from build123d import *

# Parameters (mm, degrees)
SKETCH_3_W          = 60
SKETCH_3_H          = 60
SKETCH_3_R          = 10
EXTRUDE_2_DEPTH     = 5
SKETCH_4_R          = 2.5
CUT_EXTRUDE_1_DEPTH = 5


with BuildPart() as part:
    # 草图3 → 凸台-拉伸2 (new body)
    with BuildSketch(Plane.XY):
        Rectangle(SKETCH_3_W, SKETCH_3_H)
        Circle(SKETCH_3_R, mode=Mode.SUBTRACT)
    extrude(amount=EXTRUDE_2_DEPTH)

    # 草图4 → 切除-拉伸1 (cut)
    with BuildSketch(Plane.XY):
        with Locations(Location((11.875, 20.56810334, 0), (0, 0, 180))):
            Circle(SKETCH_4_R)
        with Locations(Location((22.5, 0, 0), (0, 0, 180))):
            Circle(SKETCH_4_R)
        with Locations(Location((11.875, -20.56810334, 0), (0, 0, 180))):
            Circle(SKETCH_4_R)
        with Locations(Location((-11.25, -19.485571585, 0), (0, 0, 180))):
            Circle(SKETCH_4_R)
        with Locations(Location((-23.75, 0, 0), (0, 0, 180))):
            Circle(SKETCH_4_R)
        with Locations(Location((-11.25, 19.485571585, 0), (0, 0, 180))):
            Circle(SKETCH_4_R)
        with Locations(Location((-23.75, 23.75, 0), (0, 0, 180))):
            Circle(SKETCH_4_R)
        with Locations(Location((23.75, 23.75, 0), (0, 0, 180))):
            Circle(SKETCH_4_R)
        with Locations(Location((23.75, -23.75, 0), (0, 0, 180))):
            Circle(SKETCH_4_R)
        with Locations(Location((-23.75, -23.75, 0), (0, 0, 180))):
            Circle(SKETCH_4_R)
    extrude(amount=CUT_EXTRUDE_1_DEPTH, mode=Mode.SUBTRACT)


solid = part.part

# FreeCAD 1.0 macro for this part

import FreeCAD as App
import Part
import Sketcher
Q = App.Units.Quantity


def add_polygon(sketch, points):
    """Adds a closed chain of lines whose ends are joined by coincident constraints."""
    first, n = sketch.GeometryCount, len(points)
    for a, b in zip(points, points[1:] + points[:1]):
        sketch.addGeometry(Part.LineSegment(App.Vector(*a, 0), App.Vector(*b, 0)), False)
    for i in range(n):
        sketch.addConstraint(Sketcher.Constraint("Coincident", first + i, 2, first + (i + 1) % n, 1))

doc = App.newDocument("Part")
params = doc.addObject("Spreadsheet::Sheet", "Params")
for row, (alias, value) in enumerate([
    ("sketch1_diameter", "20 mm"),
    ("sketch1_width", "60 mm"),
    ("pad1_length", "5 mm"),
    ("sketch2_diameter", "5 mm"),
    ("pocket1_length", "5 mm"),
], start=1):
    params.set(f"A{row}", alias)
    params.set(f"B{row}", "=" + value)
    params.setAlias(f"B{row}", alias)

body = doc.addObject("PartDesign::Body", "Body")

sketch1 = doc.addObject("Sketcher::SketchObject", "Sketch")
body.addObject(sketch1)
sketch1.AttachmentSupport = (doc.XY_Plane, [""])
sketch1.MapMode = "FlatFace"
add_polygon(sketch1, [(-30, 30), (-30, -30), (30, -30), (30, 30)])
sketch1.addGeometry(Part.Circle(App.Vector(0, 0, 0), App.Vector(0, 0, 1), 10), False)
sketch1.addConstraint(Sketcher.Constraint("Vertical", 0))
sketch1.addConstraint(Sketcher.Constraint("Horizontal", 1))
sketch1.addConstraint(Sketcher.Constraint("Vertical", 2))
sketch1.addConstraint(Sketcher.Constraint("Horizontal", 3))
sketch1.addConstraint(Sketcher.Constraint("Coincident", 4, 3, -1, 1))
sketch1.addConstraint(Sketcher.Constraint("Symmetric", 0, 2, 2, 2, -1, 1))
sketch1.addConstraint(Sketcher.Constraint("Equal", 3, 0))
sketch1.addConstraint(Sketcher.Constraint("Diameter", 4, Q("20 mm")))
sketch1.addConstraint(Sketcher.Constraint("DistanceX", 1, 1, 1, 2, Q("60 mm")))
sketch1.setExpression("Constraints[11]", "Params.sketch1_diameter")
sketch1.setExpression("Constraints[12]", "Params.sketch1_width")
pad1 = doc.addObject("PartDesign::Pad", "Pad")
body.addObject(pad1)
pad1.Profile = sketch1
pad1.setExpression("Length", "Params.pad1_length")

sketch2 = doc.addObject("Sketcher::SketchObject", "Sketch001")
body.addObject(sketch2)
sketch2.AttachmentSupport = (doc.XY_Plane, [""])
sketch2.MapMode = "FlatFace"
sketch2.addGeometry(Part.Circle(App.Vector(11.9, 20.6, 0), App.Vector(0, 0, 1), 2.5), False)
sketch2.addGeometry(Part.Circle(App.Vector(22.5, 0, 0), App.Vector(0, 0, 1), 2.5), False)
sketch2.addGeometry(Part.Circle(App.Vector(11.9, -20.6, 0), App.Vector(0, 0, 1), 2.5), False)
sketch2.addGeometry(Part.Circle(App.Vector(-11.2, -19.5, 0), App.Vector(0, 0, 1), 2.5), False)
sketch2.addGeometry(Part.Circle(App.Vector(-23.8, 0, 0), App.Vector(0, 0, 1), 2.5), False)
sketch2.addGeometry(Part.Circle(App.Vector(-11.2, 19.5, 0), App.Vector(0, 0, 1), 2.5), False)
sketch2.addGeometry(Part.Circle(App.Vector(-23.8, 23.8, 0), App.Vector(0, 0, 1), 2.5), False)
sketch2.addGeometry(Part.Circle(App.Vector(23.8, 23.8, 0), App.Vector(0, 0, 1), 2.5), False)
sketch2.addGeometry(Part.Circle(App.Vector(23.8, -23.8, 0), App.Vector(0, 0, 1), 2.5), False)
sketch2.addGeometry(Part.Circle(App.Vector(-23.8, -23.8, 0), App.Vector(0, 0, 1), 2.5), False)
sketch2.addConstraint(Sketcher.Constraint("Equal", 0, 1))
sketch2.addConstraint(Sketcher.Constraint("Equal", 1, 2))
sketch2.addConstraint(Sketcher.Constraint("Equal", 2, 3))
sketch2.addConstraint(Sketcher.Constraint("Equal", 3, 4))
sketch2.addConstraint(Sketcher.Constraint("Equal", 4, 5))
sketch2.addConstraint(Sketcher.Constraint("Equal", 5, 6))
sketch2.addConstraint(Sketcher.Constraint("Equal", 6, 7))
sketch2.addConstraint(Sketcher.Constraint("Equal", 7, 8))
sketch2.addConstraint(Sketcher.Constraint("Equal", 8, 9))
sketch2.addConstraint(Sketcher.Constraint("Symmetric", 6, 3, 8, 3, -1, 1))
sketch2.addConstraint(Sketcher.Constraint("Symmetric", 7, 3, 9, 3, -1, 1))
sketch2.addConstraint(Sketcher.Constraint("Symmetric", 6, 3, 7, 3, -2))
sketch2.addConstraint(Sketcher.Constraint("Symmetric", 0, 3, 2, 3, -1))
sketch2.addConstraint(Sketcher.Constraint("Symmetric", 3, 3, 5, 3, -1))
sketch2.addConstraint(Sketcher.Constraint("PointOnObject", 1, 3, -1))
sketch2.addConstraint(Sketcher.Constraint("PointOnObject", 4, 3, -1))
sketch2.addConstraint(Sketcher.Constraint("Vertical", 4, 3, 6, 3))
sketch2.addConstraint(Sketcher.Constraint("Diameter", 0, Q("5 mm")))
sketch2.addConstraint(Sketcher.Constraint("DistanceX", 5, 3, 7, 3, Q("35 mm")))
sketch2.addConstraint(Sketcher.Constraint("DistanceX", -1, 1, 1, 3, Q("22.5 mm")))
sketch2.addConstraint(Sketcher.Constraint("DistanceX", 4, 3, 3, 3, Q("12.5 mm")))
sketch2.addConstraint(Sketcher.Constraint("DistanceY", 8, 3, 7, 3, Q("47.5 mm")))
sketch2.addConstraint(Sketcher.Constraint("DistanceX", -1, 1, 0, 3, Q("11.875 mm")))
sketch2.addConstraint(Sketcher.Constraint("DistanceY", 3, 3, -1, 1, Q("19.485572 mm")))
sketch2.addConstraint(Sketcher.Constraint("DistanceY", 2, 3, 3, 3, Q("1.082532 mm")))
sketch2.setExpression("Constraints[17]", "Params.sketch2_diameter")
pocket1 = doc.addObject("PartDesign::Pocket", "Pocket")
body.addObject(pocket1)
pocket1.Profile = sketch2
pocket1.setExpression("Length", "Params.pocket1_length")
pocket1.Reversed = True

doc.recompute()
